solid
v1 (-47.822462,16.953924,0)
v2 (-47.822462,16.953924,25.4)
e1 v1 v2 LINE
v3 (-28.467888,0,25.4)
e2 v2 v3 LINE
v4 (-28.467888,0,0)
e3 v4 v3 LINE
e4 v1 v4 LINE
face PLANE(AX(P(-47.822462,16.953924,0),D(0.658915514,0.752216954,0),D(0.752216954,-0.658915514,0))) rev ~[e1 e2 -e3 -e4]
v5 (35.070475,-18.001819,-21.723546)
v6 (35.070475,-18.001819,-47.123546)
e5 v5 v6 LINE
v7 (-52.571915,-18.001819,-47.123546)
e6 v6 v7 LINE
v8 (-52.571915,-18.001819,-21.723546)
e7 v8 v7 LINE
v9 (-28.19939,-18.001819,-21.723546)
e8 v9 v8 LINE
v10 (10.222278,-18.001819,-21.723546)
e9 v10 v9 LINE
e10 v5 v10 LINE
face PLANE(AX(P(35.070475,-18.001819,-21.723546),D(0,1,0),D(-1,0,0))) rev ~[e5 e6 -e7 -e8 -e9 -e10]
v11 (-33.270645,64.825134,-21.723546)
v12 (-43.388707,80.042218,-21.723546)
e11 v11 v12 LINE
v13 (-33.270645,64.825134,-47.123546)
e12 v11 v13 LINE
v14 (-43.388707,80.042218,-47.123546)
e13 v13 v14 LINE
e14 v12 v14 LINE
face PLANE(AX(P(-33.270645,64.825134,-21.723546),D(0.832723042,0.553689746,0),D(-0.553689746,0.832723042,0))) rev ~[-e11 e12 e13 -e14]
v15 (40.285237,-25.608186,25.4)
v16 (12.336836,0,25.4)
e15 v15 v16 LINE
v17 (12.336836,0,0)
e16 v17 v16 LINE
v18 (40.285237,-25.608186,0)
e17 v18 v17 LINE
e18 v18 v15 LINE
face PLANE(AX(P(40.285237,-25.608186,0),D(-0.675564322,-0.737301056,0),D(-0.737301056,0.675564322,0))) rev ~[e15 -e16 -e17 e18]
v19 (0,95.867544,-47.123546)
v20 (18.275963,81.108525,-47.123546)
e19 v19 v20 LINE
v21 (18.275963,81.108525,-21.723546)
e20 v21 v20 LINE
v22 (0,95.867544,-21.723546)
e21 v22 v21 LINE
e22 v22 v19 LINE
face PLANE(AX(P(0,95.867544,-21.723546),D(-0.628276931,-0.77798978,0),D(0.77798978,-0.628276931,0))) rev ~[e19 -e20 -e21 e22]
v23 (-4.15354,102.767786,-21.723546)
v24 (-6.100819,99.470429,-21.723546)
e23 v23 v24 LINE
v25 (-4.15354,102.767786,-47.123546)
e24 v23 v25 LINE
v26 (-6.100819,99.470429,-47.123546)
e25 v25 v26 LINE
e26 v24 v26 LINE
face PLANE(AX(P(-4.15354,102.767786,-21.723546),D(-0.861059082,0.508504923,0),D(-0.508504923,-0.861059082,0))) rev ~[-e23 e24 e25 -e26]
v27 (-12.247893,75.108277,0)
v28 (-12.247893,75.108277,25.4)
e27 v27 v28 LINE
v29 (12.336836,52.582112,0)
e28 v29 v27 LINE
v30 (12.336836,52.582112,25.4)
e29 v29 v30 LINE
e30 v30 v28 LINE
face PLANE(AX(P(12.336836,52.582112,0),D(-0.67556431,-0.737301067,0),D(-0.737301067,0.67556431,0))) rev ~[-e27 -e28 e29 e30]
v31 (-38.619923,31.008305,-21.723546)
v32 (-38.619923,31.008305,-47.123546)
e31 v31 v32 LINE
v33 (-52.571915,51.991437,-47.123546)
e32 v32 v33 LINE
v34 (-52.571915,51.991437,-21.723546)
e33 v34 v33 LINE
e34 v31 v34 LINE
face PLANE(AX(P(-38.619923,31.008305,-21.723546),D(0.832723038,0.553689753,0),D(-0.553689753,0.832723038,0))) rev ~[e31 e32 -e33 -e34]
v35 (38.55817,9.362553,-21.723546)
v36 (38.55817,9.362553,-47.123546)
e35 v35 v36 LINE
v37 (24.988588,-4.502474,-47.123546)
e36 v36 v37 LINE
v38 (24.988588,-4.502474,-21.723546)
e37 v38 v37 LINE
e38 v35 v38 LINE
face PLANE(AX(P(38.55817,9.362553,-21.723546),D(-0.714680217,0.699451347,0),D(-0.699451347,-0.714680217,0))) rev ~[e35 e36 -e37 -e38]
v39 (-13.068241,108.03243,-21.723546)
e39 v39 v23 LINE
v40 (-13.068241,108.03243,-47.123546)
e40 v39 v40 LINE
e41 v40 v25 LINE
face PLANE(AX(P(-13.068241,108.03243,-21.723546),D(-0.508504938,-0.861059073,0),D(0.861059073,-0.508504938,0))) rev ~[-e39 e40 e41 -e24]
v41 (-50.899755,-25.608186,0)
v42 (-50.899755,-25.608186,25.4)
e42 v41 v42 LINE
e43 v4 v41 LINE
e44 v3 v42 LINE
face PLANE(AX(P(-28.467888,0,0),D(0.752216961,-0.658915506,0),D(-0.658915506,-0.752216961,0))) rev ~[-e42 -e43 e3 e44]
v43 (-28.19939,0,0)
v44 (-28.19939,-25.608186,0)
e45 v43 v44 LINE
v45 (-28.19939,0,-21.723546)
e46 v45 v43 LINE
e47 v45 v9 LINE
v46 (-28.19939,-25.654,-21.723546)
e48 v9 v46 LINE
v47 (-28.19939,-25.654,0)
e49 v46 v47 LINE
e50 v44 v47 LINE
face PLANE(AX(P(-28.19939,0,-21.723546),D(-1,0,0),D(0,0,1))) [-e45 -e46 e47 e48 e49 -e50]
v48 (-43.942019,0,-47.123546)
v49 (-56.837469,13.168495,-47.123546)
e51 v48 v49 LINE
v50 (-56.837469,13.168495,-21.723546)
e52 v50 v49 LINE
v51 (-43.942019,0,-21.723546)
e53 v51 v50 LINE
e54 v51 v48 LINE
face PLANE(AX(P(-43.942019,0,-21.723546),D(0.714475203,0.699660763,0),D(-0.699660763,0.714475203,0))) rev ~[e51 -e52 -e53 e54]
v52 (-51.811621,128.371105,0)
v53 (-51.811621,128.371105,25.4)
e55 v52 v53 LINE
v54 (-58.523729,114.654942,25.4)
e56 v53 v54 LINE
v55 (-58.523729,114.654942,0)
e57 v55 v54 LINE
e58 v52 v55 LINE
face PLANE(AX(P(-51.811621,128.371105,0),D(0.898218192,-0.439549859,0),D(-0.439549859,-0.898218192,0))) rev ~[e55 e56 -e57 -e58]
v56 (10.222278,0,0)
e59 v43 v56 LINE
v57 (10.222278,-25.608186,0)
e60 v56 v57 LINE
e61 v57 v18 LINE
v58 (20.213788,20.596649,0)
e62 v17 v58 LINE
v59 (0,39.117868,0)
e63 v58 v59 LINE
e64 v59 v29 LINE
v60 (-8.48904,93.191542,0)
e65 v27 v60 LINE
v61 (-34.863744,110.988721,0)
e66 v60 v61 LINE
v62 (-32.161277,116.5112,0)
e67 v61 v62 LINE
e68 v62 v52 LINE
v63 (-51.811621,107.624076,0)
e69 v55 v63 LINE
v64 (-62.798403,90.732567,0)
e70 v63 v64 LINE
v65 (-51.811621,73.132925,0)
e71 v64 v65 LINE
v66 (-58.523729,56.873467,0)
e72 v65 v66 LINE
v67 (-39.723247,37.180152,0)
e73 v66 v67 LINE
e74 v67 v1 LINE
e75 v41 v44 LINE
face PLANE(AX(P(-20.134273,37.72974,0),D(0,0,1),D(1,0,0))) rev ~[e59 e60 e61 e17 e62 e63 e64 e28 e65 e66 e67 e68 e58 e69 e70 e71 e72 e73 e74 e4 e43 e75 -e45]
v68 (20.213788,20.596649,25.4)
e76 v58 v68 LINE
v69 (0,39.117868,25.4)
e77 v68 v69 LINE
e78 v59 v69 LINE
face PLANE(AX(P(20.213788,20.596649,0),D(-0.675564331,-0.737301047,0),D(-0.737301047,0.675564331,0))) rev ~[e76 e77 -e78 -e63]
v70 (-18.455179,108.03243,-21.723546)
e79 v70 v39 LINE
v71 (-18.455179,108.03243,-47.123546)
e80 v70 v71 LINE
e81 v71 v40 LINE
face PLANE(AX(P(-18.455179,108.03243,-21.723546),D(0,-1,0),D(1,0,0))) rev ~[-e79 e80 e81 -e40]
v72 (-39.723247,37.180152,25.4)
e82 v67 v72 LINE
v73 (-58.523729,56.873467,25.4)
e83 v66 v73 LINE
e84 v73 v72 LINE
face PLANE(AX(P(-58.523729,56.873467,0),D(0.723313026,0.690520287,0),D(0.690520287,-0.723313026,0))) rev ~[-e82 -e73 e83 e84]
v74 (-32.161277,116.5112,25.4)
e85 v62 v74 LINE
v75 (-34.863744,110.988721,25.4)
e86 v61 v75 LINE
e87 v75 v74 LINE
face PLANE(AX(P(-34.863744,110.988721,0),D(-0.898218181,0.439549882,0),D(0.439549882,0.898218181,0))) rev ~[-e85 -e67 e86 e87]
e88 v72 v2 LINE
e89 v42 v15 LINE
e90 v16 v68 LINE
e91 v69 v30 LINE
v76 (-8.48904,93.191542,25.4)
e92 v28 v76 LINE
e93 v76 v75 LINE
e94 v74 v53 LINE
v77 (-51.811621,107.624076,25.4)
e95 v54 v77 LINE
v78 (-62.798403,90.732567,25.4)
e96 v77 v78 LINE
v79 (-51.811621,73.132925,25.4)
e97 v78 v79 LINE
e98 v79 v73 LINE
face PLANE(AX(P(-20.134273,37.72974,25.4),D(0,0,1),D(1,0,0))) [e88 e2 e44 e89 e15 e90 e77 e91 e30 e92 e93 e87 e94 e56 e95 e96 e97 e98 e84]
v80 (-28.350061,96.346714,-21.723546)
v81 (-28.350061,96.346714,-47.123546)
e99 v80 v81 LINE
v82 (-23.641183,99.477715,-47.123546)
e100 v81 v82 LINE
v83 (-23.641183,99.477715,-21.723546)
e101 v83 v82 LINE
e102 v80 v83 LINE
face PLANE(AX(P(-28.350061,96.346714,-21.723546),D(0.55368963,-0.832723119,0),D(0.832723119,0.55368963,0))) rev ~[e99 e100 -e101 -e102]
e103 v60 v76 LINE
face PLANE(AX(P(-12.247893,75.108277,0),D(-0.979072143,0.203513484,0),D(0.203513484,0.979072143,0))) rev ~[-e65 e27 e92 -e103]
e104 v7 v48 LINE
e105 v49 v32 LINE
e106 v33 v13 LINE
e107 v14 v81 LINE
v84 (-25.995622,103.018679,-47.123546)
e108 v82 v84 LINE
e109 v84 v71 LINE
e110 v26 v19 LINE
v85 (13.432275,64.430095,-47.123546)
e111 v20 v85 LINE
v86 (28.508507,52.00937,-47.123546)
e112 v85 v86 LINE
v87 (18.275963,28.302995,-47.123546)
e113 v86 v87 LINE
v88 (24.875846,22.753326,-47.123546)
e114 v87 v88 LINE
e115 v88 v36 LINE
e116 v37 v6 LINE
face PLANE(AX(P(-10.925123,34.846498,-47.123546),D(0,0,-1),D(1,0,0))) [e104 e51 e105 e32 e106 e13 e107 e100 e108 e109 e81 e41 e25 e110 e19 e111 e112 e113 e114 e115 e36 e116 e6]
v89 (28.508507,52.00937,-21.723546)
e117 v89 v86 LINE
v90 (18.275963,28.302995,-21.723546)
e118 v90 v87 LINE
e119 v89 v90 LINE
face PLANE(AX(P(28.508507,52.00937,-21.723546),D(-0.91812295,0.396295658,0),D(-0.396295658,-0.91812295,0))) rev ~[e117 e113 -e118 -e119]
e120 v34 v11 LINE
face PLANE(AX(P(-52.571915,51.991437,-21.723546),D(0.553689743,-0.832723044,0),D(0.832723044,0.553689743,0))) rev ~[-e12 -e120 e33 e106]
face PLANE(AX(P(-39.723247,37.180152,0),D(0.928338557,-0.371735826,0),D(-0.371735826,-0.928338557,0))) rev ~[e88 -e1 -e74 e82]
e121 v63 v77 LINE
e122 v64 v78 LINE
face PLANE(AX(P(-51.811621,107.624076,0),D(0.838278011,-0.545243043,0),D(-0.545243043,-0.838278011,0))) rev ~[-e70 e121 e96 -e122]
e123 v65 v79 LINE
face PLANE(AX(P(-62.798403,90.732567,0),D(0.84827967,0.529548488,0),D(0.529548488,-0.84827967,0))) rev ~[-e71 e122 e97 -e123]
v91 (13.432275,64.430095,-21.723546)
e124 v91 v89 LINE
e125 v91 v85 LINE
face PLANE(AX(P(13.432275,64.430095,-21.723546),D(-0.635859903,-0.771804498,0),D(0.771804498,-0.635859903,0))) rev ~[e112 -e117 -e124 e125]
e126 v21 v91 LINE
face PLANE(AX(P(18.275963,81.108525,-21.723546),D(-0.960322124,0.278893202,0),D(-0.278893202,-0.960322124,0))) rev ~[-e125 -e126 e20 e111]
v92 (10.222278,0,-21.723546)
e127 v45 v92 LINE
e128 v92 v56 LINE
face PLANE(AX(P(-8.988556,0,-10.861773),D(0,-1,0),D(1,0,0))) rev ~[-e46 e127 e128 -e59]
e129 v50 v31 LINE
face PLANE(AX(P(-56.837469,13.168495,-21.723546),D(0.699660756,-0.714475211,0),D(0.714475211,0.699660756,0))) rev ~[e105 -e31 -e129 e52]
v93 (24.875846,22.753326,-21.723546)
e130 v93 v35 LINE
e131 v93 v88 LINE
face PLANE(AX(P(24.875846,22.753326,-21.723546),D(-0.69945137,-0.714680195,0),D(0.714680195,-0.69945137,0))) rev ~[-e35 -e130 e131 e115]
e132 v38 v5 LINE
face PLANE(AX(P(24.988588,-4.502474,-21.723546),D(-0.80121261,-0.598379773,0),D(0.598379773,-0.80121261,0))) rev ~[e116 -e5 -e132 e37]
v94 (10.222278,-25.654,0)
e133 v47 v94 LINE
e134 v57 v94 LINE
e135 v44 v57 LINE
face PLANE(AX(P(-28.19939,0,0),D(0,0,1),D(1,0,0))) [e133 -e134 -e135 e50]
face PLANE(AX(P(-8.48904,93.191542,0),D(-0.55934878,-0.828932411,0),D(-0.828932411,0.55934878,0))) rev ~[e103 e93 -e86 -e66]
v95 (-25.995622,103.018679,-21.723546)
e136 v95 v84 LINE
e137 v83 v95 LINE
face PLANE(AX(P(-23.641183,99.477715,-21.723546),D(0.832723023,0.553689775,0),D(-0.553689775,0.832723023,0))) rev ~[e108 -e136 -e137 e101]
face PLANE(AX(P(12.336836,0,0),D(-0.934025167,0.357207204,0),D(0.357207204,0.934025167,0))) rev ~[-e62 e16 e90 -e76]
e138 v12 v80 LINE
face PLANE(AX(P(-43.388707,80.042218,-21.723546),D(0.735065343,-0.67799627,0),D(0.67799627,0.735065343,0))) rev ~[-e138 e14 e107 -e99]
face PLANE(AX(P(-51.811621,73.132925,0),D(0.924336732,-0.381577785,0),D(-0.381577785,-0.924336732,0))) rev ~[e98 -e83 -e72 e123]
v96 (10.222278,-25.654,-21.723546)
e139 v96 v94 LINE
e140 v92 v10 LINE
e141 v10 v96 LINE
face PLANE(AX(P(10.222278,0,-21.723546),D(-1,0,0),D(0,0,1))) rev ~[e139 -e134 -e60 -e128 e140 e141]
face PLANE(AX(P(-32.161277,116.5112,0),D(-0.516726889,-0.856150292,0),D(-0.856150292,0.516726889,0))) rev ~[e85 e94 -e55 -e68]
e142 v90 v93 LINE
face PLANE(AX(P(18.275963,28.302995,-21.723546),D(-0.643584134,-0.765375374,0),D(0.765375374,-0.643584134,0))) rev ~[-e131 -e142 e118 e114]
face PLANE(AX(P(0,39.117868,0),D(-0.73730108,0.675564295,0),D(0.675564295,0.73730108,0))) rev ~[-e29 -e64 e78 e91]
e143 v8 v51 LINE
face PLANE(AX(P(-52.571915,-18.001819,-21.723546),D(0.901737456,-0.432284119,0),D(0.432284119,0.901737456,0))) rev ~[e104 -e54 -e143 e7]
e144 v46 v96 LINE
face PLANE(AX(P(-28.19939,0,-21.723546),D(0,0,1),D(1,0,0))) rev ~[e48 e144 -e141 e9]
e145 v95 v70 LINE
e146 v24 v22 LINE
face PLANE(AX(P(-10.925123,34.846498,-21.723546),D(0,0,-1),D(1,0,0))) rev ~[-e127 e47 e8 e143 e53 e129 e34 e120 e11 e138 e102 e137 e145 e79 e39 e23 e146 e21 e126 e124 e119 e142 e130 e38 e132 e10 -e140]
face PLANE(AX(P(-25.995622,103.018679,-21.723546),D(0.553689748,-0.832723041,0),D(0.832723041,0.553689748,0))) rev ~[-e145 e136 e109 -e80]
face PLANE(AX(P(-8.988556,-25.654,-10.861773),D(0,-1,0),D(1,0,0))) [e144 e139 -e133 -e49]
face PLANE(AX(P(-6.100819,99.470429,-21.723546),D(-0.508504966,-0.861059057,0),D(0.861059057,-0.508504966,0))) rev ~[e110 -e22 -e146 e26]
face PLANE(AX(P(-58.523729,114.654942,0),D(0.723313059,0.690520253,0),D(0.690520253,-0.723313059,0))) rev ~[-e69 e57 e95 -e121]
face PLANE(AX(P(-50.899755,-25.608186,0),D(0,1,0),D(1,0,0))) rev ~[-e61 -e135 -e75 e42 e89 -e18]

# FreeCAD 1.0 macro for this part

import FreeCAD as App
import Part
import Sketcher

V = App.Vector
Q = App.Units.Quantity

doc = App.newDocument("Part")
body = doc.addObject("PartDesign::Body", "Body")

sketch1 = body.newObject("Sketcher::SketchObject", "Sketch")
sketch1.AttachmentSupport = (doc.getObject("XZ_Plane"), [""])
sketch1.MapMode = "FlatFace"
sketch1.addGeometry([
    Part.LineSegment(V(-28, 0, 0), V(-28, -22, 0)),
    Part.LineSegment(V(-28, -22, 0), V(10, -22, 0)),
    Part.LineSegment(V(10, -22, 0), V(10, 0, 0)),
    Part.LineSegment(V(10, 0, 0), V(-28, 0, 0)),
], False)
sketch1.addConstraint([
    Sketcher.Constraint("Coincident", 0, 2, 1, 1),
    Sketcher.Constraint("Coincident", 1, 2, 2, 1),
    Sketcher.Constraint("Coincident", 2, 2, 3, 1),
    Sketcher.Constraint("Coincident", 3, 2, 0, 1),
    Sketcher.Constraint("Vertical", 0),
    Sketcher.Constraint("Horizontal", 1),
    Sketcher.Constraint("Vertical", 2),
    Sketcher.Constraint("Horizontal", 3),
    Sketcher.Constraint("PointOnObject", 2, 2, -1),
    Sketcher.Constraint("DistanceX", 1, 1, 1, 2, Q("38.421668 mm")),
    Sketcher.Constraint("DistanceY", 0, 2, 0, 1, Q("21.723546 mm")),
    Sketcher.Constraint("DistanceX", 0, 2, -1, 1, Q("28.19939 mm")),
])
pad1 = body.newObject("PartDesign::Pad", "Pad")
pad1.Profile = sketch1
pad1.Length = Q("1.01 in")

sketch2 = body.newObject("Sketcher::SketchObject", "Sketch001")
sketch2.AttachmentSupport = (doc.getObject("XY_Plane"), [""])
sketch2.MapMode = "FlatFace"
sketch2.addGeometry([
    Part.LineSegment(V(40, -26, 0), V(12, 0, 0)),
    Part.LineSegment(V(12, 0, 0), V(20, 21, 0)),
    Part.LineSegment(V(20, 21, 0), V(0, 39, 0)),
    Part.LineSegment(V(0, 39, 0), V(12, 53, 0)),
    Part.LineSegment(V(12, 53, 0), V(-12, 75, 0)),
    Part.LineSegment(V(-12, 75, 0), V(-8, 93, 0)),
    Part.LineSegment(V(-8, 93, 0), V(-35, 111, 0)),
    Part.LineSegment(V(-35, 111, 0), V(-32, 117, 0)),
    Part.LineSegment(V(-32, 117, 0), V(-52, 128, 0)),
    Part.LineSegment(V(-52, 128, 0), V(-59, 115, 0)),
    Part.LineSegment(V(-59, 115, 0), V(-52, 108, 0)),
    Part.LineSegment(V(-52, 108, 0), V(-63, 91, 0)),
    Part.LineSegment(V(-63, 91, 0), V(-52, 73, 0)),
    Part.LineSegment(V(-52, 73, 0), V(-59, 57, 0)),
    Part.LineSegment(V(-59, 57, 0), V(-40, 37, 0)),
    Part.LineSegment(V(-40, 37, 0), V(-48, 17, 0)),
    Part.LineSegment(V(-48, 17, 0), V(-28, 0, 0)),
    Part.LineSegment(V(-28, 0, 0), V(-51, -26, 0)),
    Part.LineSegment(V(-51, -26, 0), V(40, -26, 0)),
], False)
sketch2.addConstraint([
    Sketcher.Constraint("Coincident", 0, 2, 1, 1),
    Sketcher.Constraint("Coincident", 1, 2, 2, 1),
    Sketcher.Constraint("Coincident", 2, 2, 3, 1),
    Sketcher.Constraint("Coincident", 3, 2, 4, 1),
    Sketcher.Constraint("Coincident", 4, 2, 5, 1),
    Sketcher.Constraint("Coincident", 5, 2, 6, 1),
    Sketcher.Constraint("Coincident", 6, 2, 7, 1),
    Sketcher.Constraint("Coincident", 7, 2, 8, 1),
    Sketcher.Constraint("Coincident", 8, 2, 9, 1),
    Sketcher.Constraint("Coincident", 9, 2, 10, 1),
    Sketcher.Constraint("Coincident", 10, 2, 11, 1),
    Sketcher.Constraint("Coincident", 11, 2, 12, 1),
    Sketcher.Constraint("Coincident", 12, 2, 13, 1),
    Sketcher.Constraint("Coincident", 13, 2, 14, 1),
    Sketcher.Constraint("Coincident", 14, 2, 15, 1),
    Sketcher.Constraint("Coincident", 15, 2, 16, 1),
    Sketcher.Constraint("Coincident", 16, 2, 17, 1),
    Sketcher.Constraint("Coincident", 17, 2, 18, 1),
    Sketcher.Constraint("Coincident", 18, 2, 0, 1),
    Sketcher.Constraint("Horizontal", 18),
    Sketcher.Constraint("PointOnObject", 0, 2, -1),
    Sketcher.Constraint("PointOnObject", 2, 2, -2),
    Sketcher.Constraint("PointOnObject", 16, 2, -1),
    Sketcher.Constraint("Parallel", 0, 2),
    Sketcher.Constraint("Perpendicular", 2, 3),
    Sketcher.Constraint("Perpendicular", 3, 4),
    Sketcher.Constraint("Parallel", 7, 9),
    Sketcher.Constraint("Parallel", 10, 14),
    Sketcher.Constraint("Perpendicular", 16, 17),
    Sketcher.Constraint("Vertical", 0, 2, 3, 2),
    Sketcher.Constraint("Vertical", 8, 2, 10, 2),
    Sketcher.Constraint("Vertical", 10, 2, 12, 2),
    Sketcher.Constraint("Vertical", 9, 2, 13, 2),
    Sketcher.Constraint("Distance", 17, Q("1.3402999 in")),
    Sketcher.Constraint("Distance", 5, Q("18.469798 mm")),
    Sketcher.Constraint("DistanceX", 18, 1, 18, 2, Q("91.184992 mm")),
    Sketcher.Constraint("DistanceY", -1, 1, 7, 2, Q("116.5112 mm")),
    Sketcher.Constraint("DistanceY", 5, 2, 9, 2, Q("21.4634 mm")),
    Sketcher.Constraint("DistanceY", 13, 2, 11, 2, Q("33.8591 mm")),
    Sketcher.Constraint("DistanceY", 15, 2, 12, 2, Q("56.179001 mm")),
    Sketcher.Constraint("DistanceX", 0, 2, 18, 2, Q("27.948401 mm")),
    Sketcher.Constraint("DistanceY", 18, 2, 3, 2, Q("78.190298 mm")),
    Sketcher.Constraint("Distance", 2, Q("27.415922 mm")),
    Sketcher.Constraint("Distance", 4, Q("33.34422 mm")),
    Sketcher.Constraint("Distance", 7, Q("6.14826 mm")),
    Sketcher.Constraint("Distance", 8, Q("22.95198 mm")),
    Sketcher.Constraint("DistanceX", -1, 1, 1, 2, Q("20.213788 mm")),
    Sketcher.Constraint("DistanceY", -1, 1, 1, 2, Q("20.596649 mm")),
    Sketcher.Constraint("DistanceX", 5, 2, -1, 1, Q("8.48904 mm")),
    Sketcher.Constraint("DistanceY", -1, 1, 6, 2, Q("110.988721 mm")),
    Sketcher.Constraint("DistanceX", 8, 2, -1, 1, Q("51.811621 mm")),
    Sketcher.Constraint("DistanceX", 9, 2, -1, 1, Q("58.523729 mm")),
    Sketcher.Constraint("DistanceY", 10, 2, 8, 2, Q("20.747029 mm")),
    Sketcher.Constraint("DistanceX", 11, 2, 10, 2, Q("10.986782 mm")),
    Sketcher.Constraint("DistanceY", 11, 2, 10, 2, Q("16.891509 mm")),
    Sketcher.Constraint("DistanceY", 12, 2, 10, 2, Q("34.491151 mm")),
    Sketcher.Constraint("DistanceY", 14, 2, 3, 2, Q("15.40196 mm")),
])
pad2 = body.newObject("PartDesign::Pad", "Pad001")
pad2.Profile = sketch2
pad2.Length = Q("1 in")

sketch3 = body.newObject("Sketcher::SketchObject", "Sketch002")
sketch3.AttachmentSupport = (doc.getObject("XY_Plane"), [""])
sketch3.MapMode = "FlatFace"
sketch3.AttachmentOffset = App.Placement(V(0, 0, -21.723546), App.Rotation())
sketch3.addGeometry([
    Part.LineSegment(V(35.1, -18, 0), V(-52.6, -18, 0)),
    Part.LineSegment(V(-52.6, -18, 0), V(-43.9, 0, 0)),
    Part.LineSegment(V(-43.9, 0, 0), V(-56.8, 13.2, 0)),
    Part.LineSegment(V(-56.8, 13.2, 0), V(-38.6, 31, 0)),
    Part.LineSegment(V(-38.6, 31, 0), V(-52.6, 52, 0)),
    Part.LineSegment(V(-52.6, 52, 0), V(-33.3, 64.8, 0)),
    Part.LineSegment(V(-33.3, 64.8, 0), V(-43.4, 80, 0)),
    Part.LineSegment(V(-43.4, 80, 0), V(-28.4, 96.3, 0)),
    Part.LineSegment(V(-28.4, 96.3, 0), V(-23.6, 99.5, 0)),
    Part.LineSegment(V(-23.6, 99.5, 0), V(-26, 103, 0)),
    Part.LineSegment(V(-26, 103, 0), V(-18.5, 108, 0)),
    Part.LineSegment(V(-18.5, 108, 0), V(-13.1, 108, 0)),
    Part.LineSegment(V(-13.1, 108, 0), V(-4.2, 102.8, 0)),
    Part.LineSegment(V(-4.2, 102.8, 0), V(-6.1, 99.5, 0)),
    Part.LineSegment(V(-6.1, 99.5, 0), V(0, 95.9, 0)),
    Part.LineSegment(V(0, 95.9, 0), V(18.3, 81.1, 0)),
    Part.LineSegment(V(18.3, 81.1, 0), V(13.4, 64.4, 0)),
    Part.LineSegment(V(13.4, 64.4, 0), V(28.5, 52, 0)),
    Part.LineSegment(V(28.5, 52, 0), V(18.3, 28.3, 0)),
    Part.LineSegment(V(18.3, 28.3, 0), V(24.9, 22.8, 0)),
    Part.LineSegment(V(24.9, 22.8, 0), V(38.6, 9.4, 0)),
    Part.LineSegment(V(38.6, 9.4, 0), V(25, -4.5, 0)),
    Part.LineSegment(V(25, -4.5, 0), V(35.1, -18, 0)),
], False)
sketch3.addConstraint([
    Sketcher.Constraint("Coincident", 0, 2, 1, 1),
    Sketcher.Constraint("Coincident", 1, 2, 2, 1),
    Sketcher.Constraint("Coincident", 2, 2, 3, 1),
    Sketcher.Constraint("Coincident", 3, 2, 4, 1),
    Sketcher.Constraint("Coincident", 4, 2, 5, 1),
    Sketcher.Constraint("Coincident", 5, 2, 6, 1),
    Sketcher.Constraint("Coincident", 6, 2, 7, 1),
    Sketcher.Constraint("Coincident", 7, 2, 8, 1),
    Sketcher.Constraint("Coincident", 8, 2, 9, 1),
    Sketcher.Constraint("Coincident", 9, 2, 10, 1),
    Sketcher.Constraint("Coincident", 10, 2, 11, 1),
    Sketcher.Constraint("Coincident", 11, 2, 12, 1),
    Sketcher.Constraint("Coincident", 12, 2, 13, 1),
    Sketcher.Constraint("Coincident", 13, 2, 14, 1),
    Sketcher.Constraint("Coincident", 14, 2, 15, 1),
    Sketcher.Constraint("Coincident", 15, 2, 16, 1),
    Sketcher.Constraint("Coincident", 16, 2, 17, 1),
    Sketcher.Constraint("Coincident", 17, 2, 18, 1),
    Sketcher.Constraint("Coincident", 18, 2, 19, 1),
    Sketcher.Constraint("Coincident", 19, 2, 20, 1),
    Sketcher.Constraint("Coincident", 20, 2, 21, 1),
    Sketcher.Constraint("Coincident", 21, 2, 22, 1),
    Sketcher.Constraint("Coincident", 22, 2, 0, 1),
    Sketcher.Constraint("Horizontal", 0),
    Sketcher.Constraint("Horizontal", 11),
    Sketcher.Constraint("PointOnObject", 1, 2, -1),
    Sketcher.Constraint("PointOnObject", 14, 2, -2),
    Sketcher.Constraint("Perpendicular", 2, 3),
    Sketcher.Constraint("Perpendicular", 4, 5),
    Sketcher.Constraint("Perpendicular", 5, 6),
    Sketcher.Constraint("Perpendicular", 6, 8),
    Sketcher.Constraint("Perpendicular", 8, 9),
    Sketcher.Constraint("Perpendicular", 9, 10),
    Sketcher.Constraint("Perpendicular", 12, 13),
    Sketcher.Constraint("Perpendicular", 13, 14),
    Sketcher.Constraint("Perpendicular", 20, 21),
    Sketcher.Constraint("Vertical", 0, 2, 4, 2),
    Sketcher.Constraint("Vertical", 15, 2, 18, 2),
    Sketcher.Constraint("DistanceY", 8, 2, 10, 2, Q("0.3367998 in")),
    Sketcher.Constraint("Distance", 3, Q("25.4978 mm")),
    Sketcher.Constraint("Distance", 5, Q("23.178499 mm")),
    Sketcher.Constraint("DistanceX", 0, 2, 0, 1, Q("87.64239 mm")),
    Sketcher.Constraint("DistanceX", 11, 1, 11, 2, Q("5.386938 mm")),
    Sketcher.Constraint("DistanceY", 7, 2, 8, 2, Q("3.131001 mm")),
    Sketcher.Constraint("DistanceX", 11, 2, 12, 2, Q("8.914701 mm")),
    Sketcher.Constraint("DistanceY", 13, 2, 11, 2, Q("8.562001 mm")),
    Sketcher.Constraint("DistanceY", 18, 2, 16, 2, Q("36.1271 mm")),
    Sketcher.Constraint("DistanceY", 19, 2, 15, 2, Q("58.355199 mm")),
    Sketcher.Constraint("DistanceY", 21, 2, 19, 2, Q("27.2558 mm")),
    Sketcher.Constraint("Distance", 1, Q("19.963481 mm")),
    Sketcher.Constraint("Distance", 9, Q("4.252271 mm")),
    Sketcher.Constraint("Distance", 12, Q("10.353182 mm")),
    Sketcher.Constraint("Distance", 14, Q("7.08525 mm")),
    Sketcher.Constraint("Distance", 18, Q("25.82048 mm")),
    Sketcher.Constraint("Distance", 20, Q("19.144681 mm")),
    Sketcher.Constraint("DistanceY", 0, 2, -1, 1, Q("18.001819 mm")),
    Sketcher.Constraint("DistanceX", 1, 2, -1, 1, Q("43.942019 mm")),
    Sketcher.Constraint("DistanceX", 2, 2, -1, 1, Q("56.837469 mm")),
    Sketcher.Constraint("DistanceY", -1, 1, 6, 2, Q("80.042218 mm")),
    Sketcher.Constraint("DistanceX", 7, 2, -1, 1, Q("28.350061 mm")),
    Sketcher.Constraint("DistanceY", -1, 1, 9, 2, Q("103.018679 mm")),
    Sketcher.Constraint("DistanceY", -1, 1, 17, 2, Q("52.00937 mm")),
    Sketcher.Constraint("DistanceX", -1, 1, 20, 2, Q("38.55817 mm")),
    Sketcher.Constraint("DistanceX", -1, 1, 21, 2, Q("24.988588 mm")),
    Sketcher.Constraint("DistanceY", 2, 2, 3, 2, Q("17.83981 mm")),
    Sketcher.Constraint("DistanceY", 15, 2, 14, 2, Q("14.759019 mm")),
    Sketcher.Constraint("DistanceX", 16, 2, 15, 2, Q("4.843688 mm")),
    Sketcher.Constraint("DistanceY", 16, 2, 15, 2, Q("16.67843 mm")),
    Sketcher.Constraint("DistanceX", 5, 2, 16, 2, Q("46.70292 mm")),
])
pad3 = body.newObject("PartDesign::Pad", "Pad002")
pad3.Profile = sketch3
pad3.Length = Q("1 in")
pad3.Reversed = True

doc.recompute()
